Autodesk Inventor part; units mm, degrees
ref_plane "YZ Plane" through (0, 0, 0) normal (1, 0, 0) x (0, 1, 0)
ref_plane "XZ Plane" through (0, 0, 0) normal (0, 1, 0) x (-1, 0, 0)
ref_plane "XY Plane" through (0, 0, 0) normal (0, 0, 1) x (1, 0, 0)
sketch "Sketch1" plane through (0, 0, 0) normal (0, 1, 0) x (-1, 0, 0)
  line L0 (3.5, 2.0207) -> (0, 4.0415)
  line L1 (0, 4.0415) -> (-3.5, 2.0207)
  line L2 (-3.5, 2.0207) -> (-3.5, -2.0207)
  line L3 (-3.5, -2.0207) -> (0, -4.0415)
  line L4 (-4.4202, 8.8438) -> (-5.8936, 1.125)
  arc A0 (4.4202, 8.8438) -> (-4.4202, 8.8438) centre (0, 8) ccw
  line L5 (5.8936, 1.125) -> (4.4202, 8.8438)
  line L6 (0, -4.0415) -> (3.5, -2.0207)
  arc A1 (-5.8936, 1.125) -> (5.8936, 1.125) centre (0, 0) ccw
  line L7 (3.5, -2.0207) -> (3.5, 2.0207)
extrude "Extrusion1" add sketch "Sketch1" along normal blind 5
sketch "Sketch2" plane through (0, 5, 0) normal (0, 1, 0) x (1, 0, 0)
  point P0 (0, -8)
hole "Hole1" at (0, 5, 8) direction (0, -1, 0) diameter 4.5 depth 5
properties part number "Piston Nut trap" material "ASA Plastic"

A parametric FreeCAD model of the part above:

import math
import FreeCAD as App
import Part
import Sketcher

V = App.Vector
Q = App.Units.Quantity

doc = App.newDocument("Part")
body = doc.addObject("PartDesign::Body", "Body")

# Sketch on XZ plane
sketch1 = body.newObject("Sketcher::SketchObject", "Sketch")
sketch1.AttachmentSupport = (doc.getObject("XZ_Plane"), [""])
sketch1.MapMode = "FlatFace"
sketch1.addGeometry([
    Part.ArcOfCircle(Part.Circle(V(0, 8, 0), V(0, 0, 1), 4.500018), math.radians(10.807526), math.radians(169.192474)),  # 0
    Part.LineSegment(V(4.4202, 8.8438, 0), V(5.8936, 1.125, 0)),  # 1
    Part.ArcOfCircle(Part.Circle(V(0, 0, 0), V(0, 0, 1), 6.000012), math.radians(169.193099), math.radians(370.806901)),  # 2
    Part.LineSegment(V(-5.8936, 1.125, 0), V(-4.4202, 8.8438, 0)),  # 3
    Part.LineSegment(V(0, 4.0415, 0), V(-3.5, 2.0207, 0)),  # 4
    Part.LineSegment(V(-3.5, 2.0207, 0), V(-3.5, -2.0207, 0)),  # 5
    Part.LineSegment(V(-3.5, -2.0207, 0), V(0, -4.0415, 0)),  # 6
    Part.LineSegment(V(0, -4.0415, 0), V(3.5, -2.0207, 0)),  # 7
    Part.LineSegment(V(3.5, -2.0207, 0), V(3.5, 2.0207, 0)),  # 8
    Part.LineSegment(V(3.5, 2.0207, 0), V(0, 4.0415, 0)),  # 9
], False)
sketch1.addConstraint([
    Sketcher.Constraint("Tangent", 0, 1, 1, 1),
    Sketcher.Constraint("Tangent", 1, 2, 2, 2),
    Sketcher.Constraint("Tangent", 2, 1, 3, 1),
    Sketcher.Constraint("Tangent", 3, 2, 0, 2),
    Sketcher.Constraint("Coincident", 4, 2, 5, 1),
    Sketcher.Constraint("Coincident", 5, 2, 6, 1),
    Sketcher.Constraint("Coincident", 6, 2, 7, 1),
    Sketcher.Constraint("Coincident", 7, 2, 8, 1),
    Sketcher.Constraint("Coincident", 8, 2, 9, 1),
    Sketcher.Constraint("Coincident", 9, 2, 4, 1),
    Sketcher.Constraint("Vertical", 5),
    Sketcher.Constraint("Vertical", 8),
    Sketcher.Constraint("Coincident", 2, 3, -1, 1),
    Sketcher.Constraint("Symmetric", 4, 2, 7, 2, -1, 1),
    Sketcher.Constraint("Symmetric", 6, 2, 9, 2, -1, 1),
    Sketcher.Constraint("PointOnObject", 0, 3, -2),
    Sketcher.Constraint("PointOnObject", 6, 2, -2),
    Sketcher.Constraint("Parallel", 6, 9),
    Sketcher.Constraint("Horizontal", 5, 2, 7, 2),
    Sketcher.Constraint("Radius", 2, 6.0),
    Sketcher.Constraint("Radius", 0, 4.5),
    Sketcher.Constraint("Angle", 4, Q("-149.999 deg")),
    Sketcher.Constraint("DistanceY", -1, 1, 0, 3, 8.0),
    Sketcher.Constraint("DistanceX", 5, 2, 7, 2, 7.0),
    Sketcher.Constraint("DistanceY", 5, 2, 5, 1, 4.0414),
])
pad1 = body.newObject("PartDesign::Pad", "Pad")
pad1.Profile = sketch1
pad1.Length = 5
pad1.Reversed = True

# Sketch on XZ plane
sketch2 = body.newObject("Sketcher::SketchObject", "Sketch001")
sketch2.AttachmentSupport = (doc.getObject("XZ_Plane"), [""])
sketch2.MapMode = "FlatFace"
sketch2.AttachmentOffset = App.Placement(V(0, 0, -5), App.Rotation())
sketch2.addGeometry(Part.Circle(V(0, 8, 0), V(0, 0, 1), 2.25), False)
sketch2.addConstraint([
    Sketcher.Constraint("PointOnObject", 0, 3, -2),
    Sketcher.Constraint("Diameter", 0, 4.5),
    Sketcher.Constraint("DistanceY", -1, 1, 0, 3, 8.0),
])
doc.recompute()
hole = body.newObject("PartDesign::Hole", "Hole")
hole.Profile = sketch2
hole.ThreadType = "None"
hole.Diameter = 4.5
hole.DepthType = "Dimension"
hole.Depth = 5
hole.DrillPoint = "Flat"
hole.Reversed = True

doc.recompute()
